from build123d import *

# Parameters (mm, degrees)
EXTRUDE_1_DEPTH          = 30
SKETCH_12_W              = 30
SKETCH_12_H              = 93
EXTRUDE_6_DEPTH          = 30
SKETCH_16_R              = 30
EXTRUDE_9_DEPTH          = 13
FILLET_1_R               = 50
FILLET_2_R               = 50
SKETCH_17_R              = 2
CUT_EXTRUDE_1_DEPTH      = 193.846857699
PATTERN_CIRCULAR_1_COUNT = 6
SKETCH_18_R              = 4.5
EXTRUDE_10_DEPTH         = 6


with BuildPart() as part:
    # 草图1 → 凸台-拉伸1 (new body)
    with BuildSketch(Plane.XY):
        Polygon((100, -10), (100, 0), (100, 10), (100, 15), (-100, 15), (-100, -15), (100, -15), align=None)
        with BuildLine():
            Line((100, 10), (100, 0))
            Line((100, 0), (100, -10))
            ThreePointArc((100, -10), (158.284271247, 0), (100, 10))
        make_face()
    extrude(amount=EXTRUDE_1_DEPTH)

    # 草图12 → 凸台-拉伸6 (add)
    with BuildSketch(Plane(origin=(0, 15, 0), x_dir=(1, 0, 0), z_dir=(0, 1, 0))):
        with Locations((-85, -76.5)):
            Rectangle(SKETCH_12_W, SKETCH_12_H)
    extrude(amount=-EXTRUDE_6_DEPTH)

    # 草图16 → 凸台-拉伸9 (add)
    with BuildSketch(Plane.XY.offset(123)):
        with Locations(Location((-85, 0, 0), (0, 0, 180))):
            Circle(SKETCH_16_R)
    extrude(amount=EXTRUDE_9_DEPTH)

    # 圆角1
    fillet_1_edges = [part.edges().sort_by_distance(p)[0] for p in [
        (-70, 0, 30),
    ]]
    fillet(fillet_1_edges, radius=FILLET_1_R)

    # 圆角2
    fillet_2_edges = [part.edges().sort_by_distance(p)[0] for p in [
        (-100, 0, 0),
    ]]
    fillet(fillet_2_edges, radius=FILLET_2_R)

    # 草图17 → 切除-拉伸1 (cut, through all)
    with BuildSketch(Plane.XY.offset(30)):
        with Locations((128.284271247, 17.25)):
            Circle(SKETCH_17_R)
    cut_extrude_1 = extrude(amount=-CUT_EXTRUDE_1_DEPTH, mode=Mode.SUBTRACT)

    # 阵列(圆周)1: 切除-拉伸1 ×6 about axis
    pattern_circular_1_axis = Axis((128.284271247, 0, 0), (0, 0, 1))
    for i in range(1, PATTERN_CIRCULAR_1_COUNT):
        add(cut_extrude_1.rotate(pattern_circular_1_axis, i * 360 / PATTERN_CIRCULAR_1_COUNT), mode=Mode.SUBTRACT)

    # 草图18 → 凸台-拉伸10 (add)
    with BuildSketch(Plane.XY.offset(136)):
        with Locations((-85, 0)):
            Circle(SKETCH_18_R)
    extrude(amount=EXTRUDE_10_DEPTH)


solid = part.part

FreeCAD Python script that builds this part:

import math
import FreeCAD as App
import Part
import Sketcher


def edges_at(feature, points):
    """Names of the edges that pass closest to the given points."""
    edges = feature.Shape.Edges
    near = lambda p: min(range(len(edges)), key=lambda i: edges[i].distToShape(Part.Vertex(*p))[0])
    return sorted({f"Edge{near(p) + 1}" for p in points})


def add_polygon(sketch, points):
    """Adds a closed chain of lines whose ends are joined by coincident constraints."""
    first, n = sketch.GeometryCount, len(points)
    for a, b in zip(points, points[1:] + points[:1]):
        sketch.addGeometry(Part.LineSegment(App.Vector(*a, 0), App.Vector(*b, 0)), False)
    for i in range(n):
        sketch.addConstraint(Sketcher.Constraint("Coincident", first + i, 2, first + (i + 1) % n, 1))

doc = App.newDocument("Part")
body = doc.addObject("PartDesign::Body", "Body")

sketch1 = body.newObject("Sketcher::SketchObject", "Sketch")
sketch1.AttachmentSupport = (doc.getObject("XY_Plane"), [""])
sketch1.MapMode = "FlatFace"
sketch1.addGeometry([
    Part.LineSegment(App.Vector(100, 15, 0), App.Vector(-100, 15, 0)),
    Part.LineSegment(App.Vector(-100, 15, 0), App.Vector(-100, -15, 0)),
    Part.LineSegment(App.Vector(-100, -15, 0), App.Vector(100, -15, 0)),
    Part.LineSegment(App.Vector(100, -15, 0), App.Vector(100, -10, 0)),
    Part.ArcOfCircle(Part.Circle(App.Vector(128.284271, 0, 0), App.Vector(0, 0, 1), 30), math.radians(-160.528779), math.radians(160.528779)),
    Part.LineSegment(App.Vector(100, 10, 0), App.Vector(100, 15, 0)),
], False)
sketch1.addConstraint([
    Sketcher.Constraint("Coincident", 0, 2, 1, 1),
    Sketcher.Constraint("Coincident", 1, 2, 2, 1),
    Sketcher.Constraint("Coincident", 2, 2, 3, 1),
    Sketcher.Constraint("Coincident", 3, 2, 4, 1),
    Sketcher.Constraint("Coincident", 4, 2, 5, 1),
    Sketcher.Constraint("Coincident", 5, 2, 0, 1),
    Sketcher.Constraint("Horizontal", 0),
    Sketcher.Constraint("Vertical", 1),
    Sketcher.Constraint("Horizontal", 2),
    Sketcher.Constraint("Vertical", 3),
    Sketcher.Constraint("Vertical", 5),
    Sketcher.Constraint("Symmetric", 0, 2, 2, 2, -1, 1),
    Sketcher.Constraint("Symmetric", 3, 2, 4, 2, -1),
    Sketcher.Constraint("Radius", 4, 30.0),
    Sketcher.Constraint("DistanceX", 0, 2, 0, 1, 200.0),
    Sketcher.Constraint("DistanceY", 1, 2, 1, 1, 30.0),
    Sketcher.Constraint("DistanceY", 3, 1, 3, 2, 5.0),
])
pad1 = body.newObject("PartDesign::Pad", "Pad")
pad1.Profile = sketch1
pad1.Length = 30

sketch2 = body.newObject("Sketcher::SketchObject", "Sketch001")
sketch2.AttachmentSupport = (doc.getObject("XZ_Plane"), [""])
sketch2.MapMode = "FlatFace"
sketch2.AttachmentOffset = App.Placement(App.Vector(0, 0, -15), App.Rotation())
add_polygon(sketch2, [(-100, 30), (-100, 123), (-70, 123), (-70, 30)])
sketch2.addConstraint([
    Sketcher.Constraint("Vertical", 0),
    Sketcher.Constraint("Horizontal", 1),
    Sketcher.Constraint("Vertical", 2),
    Sketcher.Constraint("Horizontal", 3),
    Sketcher.Constraint("DistanceX", 1, 1, 1, 2, 30.0),
    Sketcher.Constraint("DistanceY", 0, 1, 0, 2, 93.0),
    Sketcher.Constraint("DistanceX", 0, 2, -1, 1, 100.0),
    Sketcher.Constraint("DistanceY", -1, 1, 0, 2, 123.0),
])
pad2 = body.newObject("PartDesign::Pad", "Pad001")
pad2.Profile = sketch2
pad2.Length = 30

sketch3 = body.newObject("Sketcher::SketchObject", "Sketch002")
sketch3.AttachmentSupport = (doc.getObject("XY_Plane"), [""])
sketch3.MapMode = "FlatFace"
sketch3.AttachmentOffset = App.Placement(App.Vector(0, 0, 123), App.Rotation())
sketch3.addGeometry(Part.Circle(App.Vector(-85, 0, 0), App.Vector(0, 0, 1), 30), False)
sketch3.addConstraint([
    Sketcher.Constraint("PointOnObject", 0, 3, -1),
    Sketcher.Constraint("Diameter", 0, 60.0),
    Sketcher.Constraint("DistanceX", 0, 3, -1, 1, 85.0),
])
pad3 = body.newObject("PartDesign::Pad", "Pad002")
pad3.Profile = sketch3
pad3.Length = 13
doc.recompute()

fillet = body.newObject("PartDesign::Fillet", "Fillet")
fillet.Base = (pad3, edges_at(pad3, [(-70, 0, 30)]))
fillet.Radius = 50
doc.recompute()

fillet2 = body.newObject("PartDesign::Fillet", "Fillet001")
fillet2.Base = (fillet, edges_at(fillet, [(-100, 0, 0)]))
fillet2.Radius = 50

sketch4 = body.newObject("Sketcher::SketchObject", "Sketch003")
sketch4.AttachmentSupport = (doc.getObject("XY_Plane"), [""])
sketch4.MapMode = "FlatFace"
sketch4.AttachmentOffset = App.Placement(App.Vector(0, 0, 30), App.Rotation())
sketch4.addGeometry(Part.Circle(App.Vector(128.284271, 17.25, 0), App.Vector(0, 0, 1), 2), False)
sketch4.addConstraint([
    Sketcher.Constraint("Diameter", 0, 4.0),
    Sketcher.Constraint("DistanceY", -1, 1, 0, 3, 17.25),
    Sketcher.Constraint("DistanceX", -1, 1, 0, 3, 128.284271),
])
pocket1 = body.newObject("PartDesign::Pocket", "Pocket")
pocket1.Profile = sketch4
pocket1.Type = "ThroughAll"
doc.recompute()

datumline = body.newObject("PartDesign::Line", "DatumLine")
datumline.Placement = App.Placement(App.Vector(128.284271, 0, 0), App.Rotation(App.Vector(0, 0, 1), App.Vector(0, 0, 1)))
polarpattern = body.newObject("PartDesign::PolarPattern", "PolarPattern")
polarpattern.Originals = [pocket1]
polarpattern.Axis = (datumline, [""])
polarpattern.Angle = 360
polarpattern.Occurrences = 6
body.Tip = polarpattern

sketch5 = body.newObject("Sketcher::SketchObject", "Sketch004")
sketch5.AttachmentSupport = (doc.getObject("XY_Plane"), [""])
sketch5.MapMode = "FlatFace"
sketch5.AttachmentOffset = App.Placement(App.Vector(0, 0, 136), App.Rotation())
sketch5.addGeometry(Part.Circle(App.Vector(-85, 0, 0), App.Vector(0, 0, 1), 4.5), False)
sketch5.addConstraint([
    Sketcher.Constraint("PointOnObject", 0, 3, -1),
    Sketcher.Constraint("Diameter", 0, 9.0),
    Sketcher.Constraint("DistanceX", 0, 3, -1, 1, 85.0),
])
pad4 = body.newObject("PartDesign::Pad", "Pad003")
pad4.Profile = sketch5
pad4.Length = 6

doc.recompute()
